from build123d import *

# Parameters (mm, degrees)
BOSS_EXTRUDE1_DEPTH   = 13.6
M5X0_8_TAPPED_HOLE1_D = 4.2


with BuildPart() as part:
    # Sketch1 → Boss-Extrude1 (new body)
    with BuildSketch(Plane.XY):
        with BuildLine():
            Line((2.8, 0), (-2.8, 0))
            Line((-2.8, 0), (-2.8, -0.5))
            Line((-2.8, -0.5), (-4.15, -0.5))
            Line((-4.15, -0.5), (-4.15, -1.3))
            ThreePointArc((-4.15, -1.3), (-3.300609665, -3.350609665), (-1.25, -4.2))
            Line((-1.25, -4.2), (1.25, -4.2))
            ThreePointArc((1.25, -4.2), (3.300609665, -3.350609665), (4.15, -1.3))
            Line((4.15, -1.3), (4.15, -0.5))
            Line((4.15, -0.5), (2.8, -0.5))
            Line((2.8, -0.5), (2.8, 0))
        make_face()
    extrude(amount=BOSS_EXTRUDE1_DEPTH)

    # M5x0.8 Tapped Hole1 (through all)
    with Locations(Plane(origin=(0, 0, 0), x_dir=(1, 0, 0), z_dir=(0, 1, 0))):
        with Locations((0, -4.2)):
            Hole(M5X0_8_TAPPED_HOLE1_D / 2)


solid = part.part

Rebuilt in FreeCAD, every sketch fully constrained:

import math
import FreeCAD as App
import Part
import Sketcher
from FreeCAD import Vector

doc = App.newDocument("Part")
body = doc.addObject("PartDesign::Body", "Body")

# Sketch on XY plane
sketch1 = body.newObject("Sketcher::SketchObject", "Sketch")
sketch1.AttachmentSupport = (doc.getObject("XY_Plane"), [""])
sketch1.MapMode = "FlatFace"
sketch1.addGeometry([
    Part.LineSegment(Vector(2.8, 0, 0), Vector(-2.8, 0, 0)),  # 0
    Part.LineSegment(Vector(-2.8, 0, 0), Vector(-2.8, -0.5, 0)),  # 1
    Part.LineSegment(Vector(-2.8, -0.5, 0), Vector(-4.2, -0.5, 0)),  # 2
    Part.LineSegment(Vector(-4.2, -0.5, 0), Vector(-4.2, -1.3, 0)),  # 3
    Part.ArcOfCircle(Part.Circle(Vector(-1.2, -1.3, 0), Vector(0, 0, 1), 2.9), math.radians(-180), math.radians(-90)),  # 4
    Part.LineSegment(Vector(-1.2, -4.2, 0), Vector(1.2, -4.2, 0)),  # 5
    Part.ArcOfCircle(Part.Circle(Vector(1.2, -1.3, 0), Vector(0, 0, 1), 2.9), math.radians(-90), math.radians(0)),  # 6
    Part.LineSegment(Vector(4.2, -1.3, 0), Vector(4.2, -0.5, 0)),  # 7
    Part.LineSegment(Vector(4.2, -0.5, 0), Vector(2.8, -0.5, 0)),  # 8
    Part.LineSegment(Vector(2.8, -0.5, 0), Vector(2.8, 0, 0)),  # 9
], False)
sketch1.addConstraint([
    Sketcher.Constraint("Coincident", 0, 2, 1, 1),
    Sketcher.Constraint("Coincident", 1, 2, 2, 1),
    Sketcher.Constraint("Coincident", 2, 2, 3, 1),
    Sketcher.Constraint("Tangent", 3, 2, 4, 1),
    Sketcher.Constraint("Tangent", 4, 2, 5, 1),
    Sketcher.Constraint("Tangent", 5, 2, 6, 1),
    Sketcher.Constraint("Tangent", 6, 2, 7, 1),
    Sketcher.Constraint("Coincident", 7, 2, 8, 1),
    Sketcher.Constraint("Coincident", 8, 2, 9, 1),
    Sketcher.Constraint("Coincident", 9, 2, 0, 1),
    Sketcher.Constraint("Horizontal", 0),
    Sketcher.Constraint("Vertical", 1),
    Sketcher.Constraint("Horizontal", 2),
    Sketcher.Constraint("Vertical", 3),
    Sketcher.Constraint("Horizontal", 5),
    Sketcher.Constraint("Vertical", 7),
    Sketcher.Constraint("Horizontal", 8),
    Sketcher.Constraint("Vertical", 9),
    Sketcher.Constraint("Equal", 4, 6),
    Sketcher.Constraint("Symmetric", 0, 2, 9, 2, -1, 1),
    Sketcher.Constraint("Symmetric", 2, 2, 7, 2, -2),
    Sketcher.Constraint("Radius", 4, 2.9),
    Sketcher.Constraint("DistanceX", 0, 2, 0, 1, 5.6),
    Sketcher.Constraint("DistanceX", 5, 1, 5, 2, 2.5),
    Sketcher.Constraint("DistanceY", 1, 2, 1, 1, 0.5),
    Sketcher.Constraint("DistanceY", 3, 2, 3, 1, 0.8),
])
pad1 = body.newObject("PartDesign::Pad", "Pad")
pad1.Profile = sketch1
pad1.Length = 13.6

# Sketch on XZ plane
sketch2 = body.newObject("Sketcher::SketchObject", "Sketch001")
sketch2.AttachmentSupport = (doc.getObject("XZ_Plane"), [""])
sketch2.MapMode = "FlatFace"
sketch2.addGeometry(Part.Circle(Vector(0, 4.2, 0), Vector(0, 0, 1), 2.1), False)
sketch2.addConstraint([
    Sketcher.Constraint("PointOnObject", 0, 3, -2),
    Sketcher.Constraint("Diameter", 0, 4.2),
    Sketcher.Constraint("DistanceY", -1, 1, 0, 3, 4.2),
])
doc.recompute()
hole = body.newObject("PartDesign::Hole", "Hole")
hole.Profile = sketch2
hole.ThreadType = "None"
hole.Diameter = 4.2
hole.DepthType = "ThroughAll"
hole.Reversed = True

doc.recompute()
